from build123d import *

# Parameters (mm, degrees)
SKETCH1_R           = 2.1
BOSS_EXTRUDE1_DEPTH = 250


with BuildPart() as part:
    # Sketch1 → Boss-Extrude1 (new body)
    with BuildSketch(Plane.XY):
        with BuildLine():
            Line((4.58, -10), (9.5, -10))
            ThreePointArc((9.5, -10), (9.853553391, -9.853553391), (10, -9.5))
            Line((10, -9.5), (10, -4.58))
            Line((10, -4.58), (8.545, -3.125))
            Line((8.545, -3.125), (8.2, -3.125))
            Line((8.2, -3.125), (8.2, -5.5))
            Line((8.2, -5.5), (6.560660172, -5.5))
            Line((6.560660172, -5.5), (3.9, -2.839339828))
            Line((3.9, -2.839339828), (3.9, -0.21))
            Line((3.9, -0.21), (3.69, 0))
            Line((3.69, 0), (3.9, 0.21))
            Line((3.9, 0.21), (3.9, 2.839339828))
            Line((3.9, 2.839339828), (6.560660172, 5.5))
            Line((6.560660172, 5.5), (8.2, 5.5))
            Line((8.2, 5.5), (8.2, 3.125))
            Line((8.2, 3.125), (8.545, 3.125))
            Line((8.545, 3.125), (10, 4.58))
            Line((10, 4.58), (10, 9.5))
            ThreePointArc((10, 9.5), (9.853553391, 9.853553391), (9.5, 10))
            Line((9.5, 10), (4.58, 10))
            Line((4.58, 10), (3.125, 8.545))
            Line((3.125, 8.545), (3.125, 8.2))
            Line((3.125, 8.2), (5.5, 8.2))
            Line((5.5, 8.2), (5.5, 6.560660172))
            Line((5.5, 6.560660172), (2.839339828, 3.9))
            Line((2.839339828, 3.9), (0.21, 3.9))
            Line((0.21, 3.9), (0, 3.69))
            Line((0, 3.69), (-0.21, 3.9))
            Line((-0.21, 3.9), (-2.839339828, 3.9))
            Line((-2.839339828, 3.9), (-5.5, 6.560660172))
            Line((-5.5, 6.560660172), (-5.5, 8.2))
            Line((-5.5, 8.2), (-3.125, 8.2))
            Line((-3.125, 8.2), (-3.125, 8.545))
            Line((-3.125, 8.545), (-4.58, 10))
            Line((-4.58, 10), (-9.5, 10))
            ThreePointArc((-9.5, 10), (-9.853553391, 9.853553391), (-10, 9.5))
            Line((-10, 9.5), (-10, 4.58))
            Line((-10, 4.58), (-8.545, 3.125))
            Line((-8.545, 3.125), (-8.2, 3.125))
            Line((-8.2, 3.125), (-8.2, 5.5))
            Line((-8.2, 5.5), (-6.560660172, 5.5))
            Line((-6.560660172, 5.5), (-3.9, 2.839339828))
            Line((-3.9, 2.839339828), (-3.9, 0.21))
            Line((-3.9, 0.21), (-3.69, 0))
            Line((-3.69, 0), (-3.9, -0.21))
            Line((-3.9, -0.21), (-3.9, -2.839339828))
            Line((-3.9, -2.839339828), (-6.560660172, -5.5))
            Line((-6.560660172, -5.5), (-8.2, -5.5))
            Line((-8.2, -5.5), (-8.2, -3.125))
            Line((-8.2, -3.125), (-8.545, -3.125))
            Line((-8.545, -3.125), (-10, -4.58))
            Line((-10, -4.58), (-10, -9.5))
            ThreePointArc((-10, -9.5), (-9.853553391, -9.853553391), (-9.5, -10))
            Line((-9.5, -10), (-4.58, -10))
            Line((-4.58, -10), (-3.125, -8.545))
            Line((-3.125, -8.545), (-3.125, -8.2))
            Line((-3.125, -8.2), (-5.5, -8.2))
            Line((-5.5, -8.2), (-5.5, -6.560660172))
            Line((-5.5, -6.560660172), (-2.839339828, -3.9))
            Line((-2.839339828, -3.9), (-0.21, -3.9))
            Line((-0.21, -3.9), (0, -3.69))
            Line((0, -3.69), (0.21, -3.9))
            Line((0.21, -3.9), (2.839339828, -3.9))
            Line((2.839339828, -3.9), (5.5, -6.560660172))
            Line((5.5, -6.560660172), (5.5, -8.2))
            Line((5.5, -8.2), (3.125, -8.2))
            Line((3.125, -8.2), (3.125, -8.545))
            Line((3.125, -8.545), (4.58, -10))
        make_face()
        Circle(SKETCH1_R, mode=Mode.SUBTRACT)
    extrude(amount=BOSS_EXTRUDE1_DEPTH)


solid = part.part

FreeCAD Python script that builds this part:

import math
import FreeCAD as App
import Part
import Sketcher
from FreeCAD import Vector
Q = App.Units.Quantity

doc = App.newDocument("Part")
params = doc.addObject("Spreadsheet::Sheet", "Params")
for row, (alias, value) in enumerate([
    ("sketch1_diameter", "4.2 mm"),
    ("sketch1_radius", "0.5 mm"),
    ("sketch1_width", "4.92 mm"),
    ("pad1_length", "250 mm"),
], start=1):
    params.set(f"A{row}", alias)
    params.set(f"B{row}", "=" + value)
    params.setAlias(f"B{row}", alias)

body = doc.addObject("PartDesign::Body", "Body")

# Sketch on XY plane
sketch1 = body.newObject("Sketcher::SketchObject", "Sketch")
sketch1.AttachmentSupport = (doc.getObject("XY_Plane"), [""])
sketch1.MapMode = "FlatFace"
sketch1.addGeometry(Part.LineSegment(Vector(4.58, -10, 0), Vector(9.5, -10, 0)), False)
sketch1.addGeometry(Part.ArcOfCircle(Part.Circle(Vector(9.5, -9.5, 0), Vector(0, 0, 1), 0.5), math.radians(-90), math.radians(0)), False)
sketch1.addGeometry(Part.LineSegment(Vector(10, -9.5, 0), Vector(10, -4.58, 0)), False)
sketch1.addGeometry(Part.LineSegment(Vector(10, -4.58, 0), Vector(8.54, -3.12, 0)), False)
sketch1.addGeometry(Part.LineSegment(Vector(8.54, -3.12, 0), Vector(8.2, -3.12, 0)), False)
sketch1.addGeometry(Part.LineSegment(Vector(8.2, -3.12, 0), Vector(8.2, -5.5, 0)), False)
sketch1.addGeometry(Part.LineSegment(Vector(8.2, -5.5, 0), Vector(6.56, -5.5, 0)), False)
sketch1.addGeometry(Part.LineSegment(Vector(6.56, -5.5, 0), Vector(3.9, -2.84, 0)), False)
sketch1.addGeometry(Part.LineSegment(Vector(3.9, -2.84, 0), Vector(3.9, -0.21, 0)), False)
sketch1.addGeometry(Part.LineSegment(Vector(3.9, -0.21, 0), Vector(3.69, 0, 0)), False)
sketch1.addGeometry(Part.LineSegment(Vector(3.69, 0, 0), Vector(3.9, 0.21, 0)), False)
sketch1.addGeometry(Part.LineSegment(Vector(3.9, 0.21, 0), Vector(3.9, 2.84, 0)), False)
sketch1.addGeometry(Part.LineSegment(Vector(3.9, 2.84, 0), Vector(6.56, 5.5, 0)), False)
sketch1.addGeometry(Part.LineSegment(Vector(6.56, 5.5, 0), Vector(8.2, 5.5, 0)), False)
sketch1.addGeometry(Part.LineSegment(Vector(8.2, 5.5, 0), Vector(8.2, 3.12, 0)), False)
sketch1.addGeometry(Part.LineSegment(Vector(8.2, 3.12, 0), Vector(8.54, 3.12, 0)), False)
sketch1.addGeometry(Part.LineSegment(Vector(8.54, 3.12, 0), Vector(10, 4.58, 0)), False)
sketch1.addGeometry(Part.LineSegment(Vector(10, 4.58, 0), Vector(10, 9.5, 0)), False)
sketch1.addGeometry(Part.ArcOfCircle(Part.Circle(Vector(9.5, 9.5, 0), Vector(0, 0, 1), 0.5), math.radians(0), math.radians(90)), False)
sketch1.addGeometry(Part.LineSegment(Vector(9.5, 10, 0), Vector(4.58, 10, 0)), False)
sketch1.addGeometry(Part.LineSegment(Vector(4.58, 10, 0), Vector(3.12, 8.54, 0)), False)
sketch1.addGeometry(Part.LineSegment(Vector(3.12, 8.54, 0), Vector(3.12, 8.2, 0)), False)
sketch1.addGeometry(Part.LineSegment(Vector(3.12, 8.2, 0), Vector(5.5, 8.2, 0)), False)
sketch1.addGeometry(Part.LineSegment(Vector(5.5, 8.2, 0), Vector(5.5, 6.56, 0)), False)
sketch1.addGeometry(Part.LineSegment(Vector(5.5, 6.56, 0), Vector(2.84, 3.9, 0)), False)
sketch1.addGeometry(Part.LineSegment(Vector(2.84, 3.9, 0), Vector(0.21, 3.9, 0)), False)
sketch1.addGeometry(Part.LineSegment(Vector(0.21, 3.9, 0), Vector(0, 3.69, 0)), False)
sketch1.addGeometry(Part.LineSegment(Vector(0, 3.69, 0), Vector(-0.21, 3.9, 0)), False)
sketch1.addGeometry(Part.LineSegment(Vector(-0.21, 3.9, 0), Vector(-2.84, 3.9, 0)), False)
sketch1.addGeometry(Part.LineSegment(Vector(-2.84, 3.9, 0), Vector(-5.5, 6.56, 0)), False)
sketch1.addGeometry(Part.LineSegment(Vector(-5.5, 6.56, 0), Vector(-5.5, 8.2, 0)), False)
sketch1.addGeometry(Part.LineSegment(Vector(-5.5, 8.2, 0), Vector(-3.12, 8.2, 0)), False)
sketch1.addGeometry(Part.LineSegment(Vector(-3.12, 8.2, 0), Vector(-3.12, 8.54, 0)), False)
sketch1.addGeometry(Part.LineSegment(Vector(-3.12, 8.54, 0), Vector(-4.58, 10, 0)), False)
sketch1.addGeometry(Part.LineSegment(Vector(-4.58, 10, 0), Vector(-9.5, 10, 0)), False)
sketch1.addGeometry(Part.ArcOfCircle(Part.Circle(Vector(-9.5, 9.5, 0), Vector(0, 0, 1), 0.5), math.radians(90), math.radians(180)), False)
sketch1.addGeometry(Part.LineSegment(Vector(-10, 9.5, 0), Vector(-10, 4.58, 0)), False)
sketch1.addGeometry(Part.LineSegment(Vector(-10, 4.58, 0), Vector(-8.54, 3.12, 0)), False)
sketch1.addGeometry(Part.LineSegment(Vector(-8.54, 3.12, 0), Vector(-8.2, 3.12, 0)), False)
sketch1.addGeometry(Part.LineSegment(Vector(-8.2, 3.12, 0), Vector(-8.2, 5.5, 0)), False)
sketch1.addGeometry(Part.LineSegment(Vector(-8.2, 5.5, 0), Vector(-6.56, 5.5, 0)), False)
sketch1.addGeometry(Part.LineSegment(Vector(-6.56, 5.5, 0), Vector(-3.9, 2.84, 0)), False)
sketch1.addGeometry(Part.LineSegment(Vector(-3.9, 2.84, 0), Vector(-3.9, 0.21, 0)), False)
sketch1.addGeometry(Part.LineSegment(Vector(-3.9, 0.21, 0), Vector(-3.69, 0, 0)), False)
sketch1.addGeometry(Part.LineSegment(Vector(-3.69, 0, 0), Vector(-3.9, -0.21, 0)), False)
sketch1.addGeometry(Part.LineSegment(Vector(-3.9, -0.21, 0), Vector(-3.9, -2.84, 0)), False)
sketch1.addGeometry(Part.LineSegment(Vector(-3.9, -2.84, 0), Vector(-6.56, -5.5, 0)), False)
sketch1.addGeometry(Part.LineSegment(Vector(-6.56, -5.5, 0), Vector(-8.2, -5.5, 0)), False)
sketch1.addGeometry(Part.LineSegment(Vector(-8.2, -5.5, 0), Vector(-8.2, -3.12, 0)), False)
sketch1.addGeometry(Part.LineSegment(Vector(-8.2, -3.12, 0), Vector(-8.54, -3.12, 0)), False)
sketch1.addGeometry(Part.LineSegment(Vector(-8.54, -3.12, 0), Vector(-10, -4.58, 0)), False)
sketch1.addGeometry(Part.LineSegment(Vector(-10, -4.58, 0), Vector(-10, -9.5, 0)), False)
sketch1.addGeometry(Part.ArcOfCircle(Part.Circle(Vector(-9.5, -9.5, 0), Vector(0, 0, 1), 0.5), math.radians(180), math.radians(270)), False)
sketch1.addGeometry(Part.LineSegment(Vector(-9.5, -10, 0), Vector(-4.58, -10, 0)), False)
sketch1.addGeometry(Part.LineSegment(Vector(-4.58, -10, 0), Vector(-3.12, -8.54, 0)), False)
sketch1.addGeometry(Part.LineSegment(Vector(-3.12, -8.54, 0), Vector(-3.12, -8.2, 0)), False)
sketch1.addGeometry(Part.LineSegment(Vector(-3.12, -8.2, 0), Vector(-5.5, -8.2, 0)), False)
sketch1.addGeometry(Part.LineSegment(Vector(-5.5, -8.2, 0), Vector(-5.5, -6.56, 0)), False)
sketch1.addGeometry(Part.LineSegment(Vector(-5.5, -6.56, 0), Vector(-2.84, -3.9, 0)), False)
sketch1.addGeometry(Part.LineSegment(Vector(-2.84, -3.9, 0), Vector(-0.21, -3.9, 0)), False)
sketch1.addGeometry(Part.LineSegment(Vector(-0.21, -3.9, 0), Vector(0, -3.69, 0)), False)
sketch1.addGeometry(Part.LineSegment(Vector(0, -3.69, 0), Vector(0.21, -3.9, 0)), False)
sketch1.addGeometry(Part.LineSegment(Vector(0.21, -3.9, 0), Vector(2.84, -3.9, 0)), False)
sketch1.addGeometry(Part.LineSegment(Vector(2.84, -3.9, 0), Vector(5.5, -6.56, 0)), False)
sketch1.addGeometry(Part.LineSegment(Vector(5.5, -6.56, 0), Vector(5.5, -8.2, 0)), False)
sketch1.addGeometry(Part.LineSegment(Vector(5.5, -8.2, 0), Vector(3.12, -8.2, 0)), False)
sketch1.addGeometry(Part.LineSegment(Vector(3.12, -8.2, 0), Vector(3.12, -8.54, 0)), False)
sketch1.addGeometry(Part.LineSegment(Vector(3.12, -8.54, 0), Vector(4.58, -10, 0)), False)
sketch1.addGeometry(Part.Circle(Vector(0, 0, 0), Vector(0, 0, 1), 2.1), False)
sketch1.addConstraint(Sketcher.Constraint("Tangent", 0, 2, 1, 1))
sketch1.addConstraint(Sketcher.Constraint("Tangent", 1, 2, 2, 1))
sketch1.addConstraint(Sketcher.Constraint("Coincident", 2, 2, 3, 1))
sketch1.addConstraint(Sketcher.Constraint("Coincident", 3, 2, 4, 1))
sketch1.addConstraint(Sketcher.Constraint("Coincident", 4, 2, 5, 1))
sketch1.addConstraint(Sketcher.Constraint("Coincident", 5, 2, 6, 1))
sketch1.addConstraint(Sketcher.Constraint("Coincident", 6, 2, 7, 1))
sketch1.addConstraint(Sketcher.Constraint("Coincident", 7, 2, 8, 1))
sketch1.addConstraint(Sketcher.Constraint("Coincident", 8, 2, 9, 1))
sketch1.addConstraint(Sketcher.Constraint("Coincident", 9, 2, 10, 1))
sketch1.addConstraint(Sketcher.Constraint("Coincident", 10, 2, 11, 1))
sketch1.addConstraint(Sketcher.Constraint("Coincident", 11, 2, 12, 1))
sketch1.addConstraint(Sketcher.Constraint("Coincident", 12, 2, 13, 1))
sketch1.addConstraint(Sketcher.Constraint("Coincident", 13, 2, 14, 1))
sketch1.addConstraint(Sketcher.Constraint("Coincident", 14, 2, 15, 1))
sketch1.addConstraint(Sketcher.Constraint("Coincident", 15, 2, 16, 1))
sketch1.addConstraint(Sketcher.Constraint("Coincident", 16, 2, 17, 1))
sketch1.addConstraint(Sketcher.Constraint("Tangent", 17, 2, 18, 1))
sketch1.addConstraint(Sketcher.Constraint("Tangent", 18, 2, 19, 1))
sketch1.addConstraint(Sketcher.Constraint("Coincident", 19, 2, 20, 1))
sketch1.addConstraint(Sketcher.Constraint("Coincident", 20, 2, 21, 1))
sketch1.addConstraint(Sketcher.Constraint("Coincident", 21, 2, 22, 1))
sketch1.addConstraint(Sketcher.Constraint("Coincident", 22, 2, 23, 1))
sketch1.addConstraint(Sketcher.Constraint("Coincident", 23, 2, 24, 1))
sketch1.addConstraint(Sketcher.Constraint("Coincident", 24, 2, 25, 1))
sketch1.addConstraint(Sketcher.Constraint("Coincident", 25, 2, 26, 1))
sketch1.addConstraint(Sketcher.Constraint("Coincident", 26, 2, 27, 1))
sketch1.addConstraint(Sketcher.Constraint("Coincident", 27, 2, 28, 1))
sketch1.addConstraint(Sketcher.Constraint("Coincident", 28, 2, 29, 1))
sketch1.addConstraint(Sketcher.Constraint("Coincident", 29, 2, 30, 1))
sketch1.addConstraint(Sketcher.Constraint("Coincident", 30, 2, 31, 1))
sketch1.addConstraint(Sketcher.Constraint("Coincident", 31, 2, 32, 1))
sketch1.addConstraint(Sketcher.Constraint("Coincident", 32, 2, 33, 1))
sketch1.addConstraint(Sketcher.Constraint("Coincident", 33, 2, 34, 1))
sketch1.addConstraint(Sketcher.Constraint("Tangent", 34, 2, 35, 1))
sketch1.addConstraint(Sketcher.Constraint("Tangent", 35, 2, 36, 1))
sketch1.addConstraint(Sketcher.Constraint("Coincident", 36, 2, 37, 1))
sketch1.addConstraint(Sketcher.Constraint("Coincident", 37, 2, 38, 1))
sketch1.addConstraint(Sketcher.Constraint("Coincident", 38, 2, 39, 1))
sketch1.addConstraint(Sketcher.Constraint("Coincident", 39, 2, 40, 1))
sketch1.addConstraint(Sketcher.Constraint("Coincident", 40, 2, 41, 1))
sketch1.addConstraint(Sketcher.Constraint("Coincident", 41, 2, 42, 1))
sketch1.addConstraint(Sketcher.Constraint("Coincident", 42, 2, 43, 1))
sketch1.addConstraint(Sketcher.Constraint("Coincident", 43, 2, 44, 1))
sketch1.addConstraint(Sketcher.Constraint("Coincident", 44, 2, 45, 1))
sketch1.addConstraint(Sketcher.Constraint("Coincident", 45, 2, 46, 1))
sketch1.addConstraint(Sketcher.Constraint("Coincident", 46, 2, 47, 1))
sketch1.addConstraint(Sketcher.Constraint("Coincident", 47, 2, 48, 1))
sketch1.addConstraint(Sketcher.Constraint("Coincident", 48, 2, 49, 1))
sketch1.addConstraint(Sketcher.Constraint("Coincident", 49, 2, 50, 1))
sketch1.addConstraint(Sketcher.Constraint("Coincident", 50, 2, 51, 1))
sketch1.addConstraint(Sketcher.Constraint("Tangent", 51, 2, 52, 1))
sketch1.addConstraint(Sketcher.Constraint("Tangent", 52, 2, 53, 1))
sketch1.addConstraint(Sketcher.Constraint("Coincident", 53, 2, 54, 1))
sketch1.addConstraint(Sketcher.Constraint("Coincident", 54, 2, 55, 1))
sketch1.addConstraint(Sketcher.Constraint("Coincident", 55, 2, 56, 1))
sketch1.addConstraint(Sketcher.Constraint("Coincident", 56, 2, 57, 1))
sketch1.addConstraint(Sketcher.Constraint("Coincident", 57, 2, 58, 1))
sketch1.addConstraint(Sketcher.Constraint("Coincident", 58, 2, 59, 1))
sketch1.addConstraint(Sketcher.Constraint("Coincident", 59, 2, 60, 1))
sketch1.addConstraint(Sketcher.Constraint("Coincident", 60, 2, 61, 1))
sketch1.addConstraint(Sketcher.Constraint("Coincident", 61, 2, 62, 1))
sketch1.addConstraint(Sketcher.Constraint("Coincident", 62, 2, 63, 1))
sketch1.addConstraint(Sketcher.Constraint("Coincident", 63, 2, 64, 1))
sketch1.addConstraint(Sketcher.Constraint("Coincident", 64, 2, 65, 1))
sketch1.addConstraint(Sketcher.Constraint("Coincident", 65, 2, 66, 1))
sketch1.addConstraint(Sketcher.Constraint("Coincident", 66, 2, 67, 1))
sketch1.addConstraint(Sketcher.Constraint("Coincident", 67, 2, 0, 1))
sketch1.addConstraint(Sketcher.Constraint("Horizontal", 0))
sketch1.addConstraint(Sketcher.Constraint("Vertical", 2))
sketch1.addConstraint(Sketcher.Constraint("Horizontal", 4))
sketch1.addConstraint(Sketcher.Constraint("Vertical", 5))
sketch1.addConstraint(Sketcher.Constraint("Horizontal", 6))
sketch1.addConstraint(Sketcher.Constraint("Vertical", 8))
sketch1.addConstraint(Sketcher.Constraint("Vertical", 11))
sketch1.addConstraint(Sketcher.Constraint("Horizontal", 13))
sketch1.addConstraint(Sketcher.Constraint("Vertical", 14))
sketch1.addConstraint(Sketcher.Constraint("Horizontal", 15))
sketch1.addConstraint(Sketcher.Constraint("Vertical", 17))
sketch1.addConstraint(Sketcher.Constraint("Horizontal", 19))
sketch1.addConstraint(Sketcher.Constraint("Vertical", 21))
sketch1.addConstraint(Sketcher.Constraint("Horizontal", 22))
sketch1.addConstraint(Sketcher.Constraint("Vertical", 23))
sketch1.addConstraint(Sketcher.Constraint("Horizontal", 25))
sketch1.addConstraint(Sketcher.Constraint("Horizontal", 28))
sketch1.addConstraint(Sketcher.Constraint("Vertical", 30))
sketch1.addConstraint(Sketcher.Constraint("Horizontal", 31))
sketch1.addConstraint(Sketcher.Constraint("Vertical", 32))
sketch1.addConstraint(Sketcher.Constraint("Horizontal", 34))
sketch1.addConstraint(Sketcher.Constraint("Vertical", 36))
sketch1.addConstraint(Sketcher.Constraint("Horizontal", 38))
sketch1.addConstraint(Sketcher.Constraint("Vertical", 39))
sketch1.addConstraint(Sketcher.Constraint("Horizontal", 40))
sketch1.addConstraint(Sketcher.Constraint("Vertical", 42))
sketch1.addConstraint(Sketcher.Constraint("Vertical", 45))
sketch1.addConstraint(Sketcher.Constraint("Horizontal", 47))
sketch1.addConstraint(Sketcher.Constraint("Vertical", 48))
sketch1.addConstraint(Sketcher.Constraint("Horizontal", 49))
sketch1.addConstraint(Sketcher.Constraint("Vertical", 51))
sketch1.addConstraint(Sketcher.Constraint("Horizontal", 53))
sketch1.addConstraint(Sketcher.Constraint("Vertical", 55))
sketch1.addConstraint(Sketcher.Constraint("Horizontal", 56))
sketch1.addConstraint(Sketcher.Constraint("Vertical", 57))
sketch1.addConstraint(Sketcher.Constraint("Horizontal", 59))
sketch1.addConstraint(Sketcher.Constraint("Horizontal", 62))
sketch1.addConstraint(Sketcher.Constraint("Vertical", 64))
sketch1.addConstraint(Sketcher.Constraint("Horizontal", 65))
sketch1.addConstraint(Sketcher.Constraint("Vertical", 66))
sketch1.addConstraint(Sketcher.Constraint("Coincident", 68, 3, -1, 1))
sketch1.addConstraint(Sketcher.Constraint("Equal", 1, 18))
sketch1.addConstraint(Sketcher.Constraint("Equal", 18, 35))
sketch1.addConstraint(Sketcher.Constraint("Equal", 35, 52))
sketch1.addConstraint(Sketcher.Constraint("Symmetric", 1, 3, 35, 3, -1, 1))
sketch1.addConstraint(Sketcher.Constraint("Symmetric", 18, 3, 52, 3, -1, 1))
sketch1.addConstraint(Sketcher.Constraint("Symmetric", 3, 2, 37, 2, -1, 1))
sketch1.addConstraint(Sketcher.Constraint("Symmetric", 5, 2, 39, 2, -1, 1))
sketch1.addConstraint(Sketcher.Constraint("Symmetric", 7, 2, 41, 2, -1, 1))
sketch1.addConstraint(Sketcher.Constraint("Symmetric", 9, 2, 43, 2, -1, 1))
sketch1.addConstraint(Sketcher.Constraint("Symmetric", 10, 2, 44, 2, -1, 1))
sketch1.addConstraint(Sketcher.Constraint("Symmetric", 12, 2, 46, 2, -1, 1))
sketch1.addConstraint(Sketcher.Constraint("Symmetric", 14, 2, 48, 2, -1, 1))
sketch1.addConstraint(Sketcher.Constraint("Symmetric", 20, 2, 54, 2, -1, 1))
sketch1.addConstraint(Sketcher.Constraint("Symmetric", 22, 2, 56, 2, -1, 1))
sketch1.addConstraint(Sketcher.Constraint("Symmetric", 24, 2, 58, 2, -1, 1))
sketch1.addConstraint(Sketcher.Constraint("Symmetric", 26, 2, 60, 2, -1, 1))
sketch1.addConstraint(Sketcher.Constraint("Symmetric", 27, 2, 61, 2, -1, 1))
sketch1.addConstraint(Sketcher.Constraint("Symmetric", 29, 2, 63, 2, -1, 1))
sketch1.addConstraint(Sketcher.Constraint("Symmetric", 31, 2, 65, 2, -1, 1))
sketch1.addConstraint(Sketcher.Constraint("Symmetric", 18, 3, 35, 3, -2))
sketch1.addConstraint(Sketcher.Constraint("Symmetric", 25, 2, 27, 2, -2))
sketch1.addConstraint(Sketcher.Constraint("Symmetric", 23, 2, 29, 2, -2))
sketch1.addConstraint(Sketcher.Constraint("Symmetric", 21, 2, 31, 2, -2))
sketch1.addConstraint(Sketcher.Constraint("Symmetric", 15, 2, 37, 2, -2))
sketch1.addConstraint(Sketcher.Constraint("Symmetric", 13, 2, 39, 2, -2))
sketch1.addConstraint(Sketcher.Constraint("Symmetric", 11, 2, 41, 2, -2))
sketch1.addConstraint(Sketcher.Constraint("PointOnObject", 9, 2, -1))
sketch1.addConstraint(Sketcher.Constraint("PointOnObject", 26, 2, -2))
sketch1.addConstraint(Sketcher.Constraint("Parallel", 3, 7))
sketch1.addConstraint(Sketcher.Constraint("Parallel", 7, 9))
sketch1.addConstraint(Sketcher.Constraint("Perpendicular", 9, 10))
sketch1.addConstraint(Sketcher.Constraint("Parallel", 10, 12))
sketch1.addConstraint(Sketcher.Constraint("Parallel", 12, 16))
sketch1.addConstraint(Sketcher.Constraint("Parallel", 16, 20))
sketch1.addConstraint(Sketcher.Constraint("Parallel", 20, 24))
sketch1.addConstraint(Sketcher.Constraint("Parallel", 24, 26))
sketch1.addConstraint(Sketcher.Constraint("Perpendicular", 26, 27))
sketch1.addConstraint(Sketcher.Constraint("Parallel", 27, 29))
sketch1.addConstraint(Sketcher.Constraint("Parallel", 29, 33))
sketch1.addConstraint(Sketcher.Constraint("Parallel", 33, 37))
sketch1.addConstraint(Sketcher.Constraint("Parallel", 37, 41))
sketch1.addConstraint(Sketcher.Constraint("Parallel", 41, 43))
sketch1.addConstraint(Sketcher.Constraint("Parallel", 44, 46))
sketch1.addConstraint(Sketcher.Constraint("Parallel", 46, 50))
sketch1.addConstraint(Sketcher.Constraint("Parallel", 50, 54))
sketch1.addConstraint(Sketcher.Constraint("Parallel", 54, 58))
sketch1.addConstraint(Sketcher.Constraint("Parallel", 58, 60))
sketch1.addConstraint(Sketcher.Constraint("Parallel", 61, 63))
sketch1.addConstraint(Sketcher.Constraint("Parallel", 63, 67))
sketch1.addConstraint(Sketcher.Constraint("Horizontal", 20, 2, 32, 2))
sketch1.addConstraint(Sketcher.Constraint("Horizontal", 2, 2, 50, 2))
sketch1.addConstraint(Sketcher.Constraint("Horizontal", 54, 2, 66, 2))
sketch1.addConstraint(Sketcher.Constraint("Equal", 53, 2))
sketch1.addConstraint(Sketcher.Constraint("Equal", 65, 5))
sketch1.addConstraint(Sketcher.Constraint("Equal", 62, 8))
sketch1.addConstraint(Sketcher.Constraint("Equal", 49, 21))
sketch1.addConstraint(Sketcher.Constraint("Equal", 47, 23))
sketch1.addConstraint(Sketcher.Constraint("Equal", 16, 20))
sketch1.addConstraint(Sketcher.Constraint("Equal", 12, 24))
sketch1.addConstraint(Sketcher.Constraint("Equal", 10, 26))
sketch1.addConstraint(Sketcher.Constraint("Diameter", 68, Q("4.2 mm")))
sketch1.addConstraint(Sketcher.Constraint("Radius", 1, Q("0.5 mm")))
sketch1.addConstraint(Sketcher.Constraint("DistanceY", 0, 2, -1, 1, Q("10 mm")))
sketch1.addConstraint(Sketcher.Constraint("DistanceX", 0, 1, 0, 2, Q("4.92 mm")))
sketch1.addConstraint(Sketcher.Constraint("DistanceX", -1, 1, 4, 2, Q("8.2 mm")))
sketch1.addConstraint(Sketcher.Constraint("DistanceY", 5, 2, -1, 1, Q("5.5 mm")))
sketch1.addConstraint(Sketcher.Constraint("DistanceX", -1, 1, 7, 2, Q("3.9 mm")))
sketch1.addConstraint(Sketcher.Constraint("DistanceX", 4, 2, 4, 1, Q("0.345 mm")))
sketch1.addConstraint(Sketcher.Constraint("DistanceY", 8, 2, -1, 1, Q("0.21 mm")))
sketch1.addConstraint(Sketcher.Constraint("DistanceX", 6, 2, 6, 1, Q("1.63934 mm")))
sketch1.setExpression("Constraints[169]", "Params.sketch1_diameter")
sketch1.setExpression("Constraints[170]", "Params.sketch1_radius")
sketch1.setExpression("Constraints[172]", "Params.sketch1_width")
pad1 = body.newObject("PartDesign::Pad", "Pad")
pad1.Profile = sketch1
pad1.setExpression("Length", "Params.pad1_length")

doc.recompute()
